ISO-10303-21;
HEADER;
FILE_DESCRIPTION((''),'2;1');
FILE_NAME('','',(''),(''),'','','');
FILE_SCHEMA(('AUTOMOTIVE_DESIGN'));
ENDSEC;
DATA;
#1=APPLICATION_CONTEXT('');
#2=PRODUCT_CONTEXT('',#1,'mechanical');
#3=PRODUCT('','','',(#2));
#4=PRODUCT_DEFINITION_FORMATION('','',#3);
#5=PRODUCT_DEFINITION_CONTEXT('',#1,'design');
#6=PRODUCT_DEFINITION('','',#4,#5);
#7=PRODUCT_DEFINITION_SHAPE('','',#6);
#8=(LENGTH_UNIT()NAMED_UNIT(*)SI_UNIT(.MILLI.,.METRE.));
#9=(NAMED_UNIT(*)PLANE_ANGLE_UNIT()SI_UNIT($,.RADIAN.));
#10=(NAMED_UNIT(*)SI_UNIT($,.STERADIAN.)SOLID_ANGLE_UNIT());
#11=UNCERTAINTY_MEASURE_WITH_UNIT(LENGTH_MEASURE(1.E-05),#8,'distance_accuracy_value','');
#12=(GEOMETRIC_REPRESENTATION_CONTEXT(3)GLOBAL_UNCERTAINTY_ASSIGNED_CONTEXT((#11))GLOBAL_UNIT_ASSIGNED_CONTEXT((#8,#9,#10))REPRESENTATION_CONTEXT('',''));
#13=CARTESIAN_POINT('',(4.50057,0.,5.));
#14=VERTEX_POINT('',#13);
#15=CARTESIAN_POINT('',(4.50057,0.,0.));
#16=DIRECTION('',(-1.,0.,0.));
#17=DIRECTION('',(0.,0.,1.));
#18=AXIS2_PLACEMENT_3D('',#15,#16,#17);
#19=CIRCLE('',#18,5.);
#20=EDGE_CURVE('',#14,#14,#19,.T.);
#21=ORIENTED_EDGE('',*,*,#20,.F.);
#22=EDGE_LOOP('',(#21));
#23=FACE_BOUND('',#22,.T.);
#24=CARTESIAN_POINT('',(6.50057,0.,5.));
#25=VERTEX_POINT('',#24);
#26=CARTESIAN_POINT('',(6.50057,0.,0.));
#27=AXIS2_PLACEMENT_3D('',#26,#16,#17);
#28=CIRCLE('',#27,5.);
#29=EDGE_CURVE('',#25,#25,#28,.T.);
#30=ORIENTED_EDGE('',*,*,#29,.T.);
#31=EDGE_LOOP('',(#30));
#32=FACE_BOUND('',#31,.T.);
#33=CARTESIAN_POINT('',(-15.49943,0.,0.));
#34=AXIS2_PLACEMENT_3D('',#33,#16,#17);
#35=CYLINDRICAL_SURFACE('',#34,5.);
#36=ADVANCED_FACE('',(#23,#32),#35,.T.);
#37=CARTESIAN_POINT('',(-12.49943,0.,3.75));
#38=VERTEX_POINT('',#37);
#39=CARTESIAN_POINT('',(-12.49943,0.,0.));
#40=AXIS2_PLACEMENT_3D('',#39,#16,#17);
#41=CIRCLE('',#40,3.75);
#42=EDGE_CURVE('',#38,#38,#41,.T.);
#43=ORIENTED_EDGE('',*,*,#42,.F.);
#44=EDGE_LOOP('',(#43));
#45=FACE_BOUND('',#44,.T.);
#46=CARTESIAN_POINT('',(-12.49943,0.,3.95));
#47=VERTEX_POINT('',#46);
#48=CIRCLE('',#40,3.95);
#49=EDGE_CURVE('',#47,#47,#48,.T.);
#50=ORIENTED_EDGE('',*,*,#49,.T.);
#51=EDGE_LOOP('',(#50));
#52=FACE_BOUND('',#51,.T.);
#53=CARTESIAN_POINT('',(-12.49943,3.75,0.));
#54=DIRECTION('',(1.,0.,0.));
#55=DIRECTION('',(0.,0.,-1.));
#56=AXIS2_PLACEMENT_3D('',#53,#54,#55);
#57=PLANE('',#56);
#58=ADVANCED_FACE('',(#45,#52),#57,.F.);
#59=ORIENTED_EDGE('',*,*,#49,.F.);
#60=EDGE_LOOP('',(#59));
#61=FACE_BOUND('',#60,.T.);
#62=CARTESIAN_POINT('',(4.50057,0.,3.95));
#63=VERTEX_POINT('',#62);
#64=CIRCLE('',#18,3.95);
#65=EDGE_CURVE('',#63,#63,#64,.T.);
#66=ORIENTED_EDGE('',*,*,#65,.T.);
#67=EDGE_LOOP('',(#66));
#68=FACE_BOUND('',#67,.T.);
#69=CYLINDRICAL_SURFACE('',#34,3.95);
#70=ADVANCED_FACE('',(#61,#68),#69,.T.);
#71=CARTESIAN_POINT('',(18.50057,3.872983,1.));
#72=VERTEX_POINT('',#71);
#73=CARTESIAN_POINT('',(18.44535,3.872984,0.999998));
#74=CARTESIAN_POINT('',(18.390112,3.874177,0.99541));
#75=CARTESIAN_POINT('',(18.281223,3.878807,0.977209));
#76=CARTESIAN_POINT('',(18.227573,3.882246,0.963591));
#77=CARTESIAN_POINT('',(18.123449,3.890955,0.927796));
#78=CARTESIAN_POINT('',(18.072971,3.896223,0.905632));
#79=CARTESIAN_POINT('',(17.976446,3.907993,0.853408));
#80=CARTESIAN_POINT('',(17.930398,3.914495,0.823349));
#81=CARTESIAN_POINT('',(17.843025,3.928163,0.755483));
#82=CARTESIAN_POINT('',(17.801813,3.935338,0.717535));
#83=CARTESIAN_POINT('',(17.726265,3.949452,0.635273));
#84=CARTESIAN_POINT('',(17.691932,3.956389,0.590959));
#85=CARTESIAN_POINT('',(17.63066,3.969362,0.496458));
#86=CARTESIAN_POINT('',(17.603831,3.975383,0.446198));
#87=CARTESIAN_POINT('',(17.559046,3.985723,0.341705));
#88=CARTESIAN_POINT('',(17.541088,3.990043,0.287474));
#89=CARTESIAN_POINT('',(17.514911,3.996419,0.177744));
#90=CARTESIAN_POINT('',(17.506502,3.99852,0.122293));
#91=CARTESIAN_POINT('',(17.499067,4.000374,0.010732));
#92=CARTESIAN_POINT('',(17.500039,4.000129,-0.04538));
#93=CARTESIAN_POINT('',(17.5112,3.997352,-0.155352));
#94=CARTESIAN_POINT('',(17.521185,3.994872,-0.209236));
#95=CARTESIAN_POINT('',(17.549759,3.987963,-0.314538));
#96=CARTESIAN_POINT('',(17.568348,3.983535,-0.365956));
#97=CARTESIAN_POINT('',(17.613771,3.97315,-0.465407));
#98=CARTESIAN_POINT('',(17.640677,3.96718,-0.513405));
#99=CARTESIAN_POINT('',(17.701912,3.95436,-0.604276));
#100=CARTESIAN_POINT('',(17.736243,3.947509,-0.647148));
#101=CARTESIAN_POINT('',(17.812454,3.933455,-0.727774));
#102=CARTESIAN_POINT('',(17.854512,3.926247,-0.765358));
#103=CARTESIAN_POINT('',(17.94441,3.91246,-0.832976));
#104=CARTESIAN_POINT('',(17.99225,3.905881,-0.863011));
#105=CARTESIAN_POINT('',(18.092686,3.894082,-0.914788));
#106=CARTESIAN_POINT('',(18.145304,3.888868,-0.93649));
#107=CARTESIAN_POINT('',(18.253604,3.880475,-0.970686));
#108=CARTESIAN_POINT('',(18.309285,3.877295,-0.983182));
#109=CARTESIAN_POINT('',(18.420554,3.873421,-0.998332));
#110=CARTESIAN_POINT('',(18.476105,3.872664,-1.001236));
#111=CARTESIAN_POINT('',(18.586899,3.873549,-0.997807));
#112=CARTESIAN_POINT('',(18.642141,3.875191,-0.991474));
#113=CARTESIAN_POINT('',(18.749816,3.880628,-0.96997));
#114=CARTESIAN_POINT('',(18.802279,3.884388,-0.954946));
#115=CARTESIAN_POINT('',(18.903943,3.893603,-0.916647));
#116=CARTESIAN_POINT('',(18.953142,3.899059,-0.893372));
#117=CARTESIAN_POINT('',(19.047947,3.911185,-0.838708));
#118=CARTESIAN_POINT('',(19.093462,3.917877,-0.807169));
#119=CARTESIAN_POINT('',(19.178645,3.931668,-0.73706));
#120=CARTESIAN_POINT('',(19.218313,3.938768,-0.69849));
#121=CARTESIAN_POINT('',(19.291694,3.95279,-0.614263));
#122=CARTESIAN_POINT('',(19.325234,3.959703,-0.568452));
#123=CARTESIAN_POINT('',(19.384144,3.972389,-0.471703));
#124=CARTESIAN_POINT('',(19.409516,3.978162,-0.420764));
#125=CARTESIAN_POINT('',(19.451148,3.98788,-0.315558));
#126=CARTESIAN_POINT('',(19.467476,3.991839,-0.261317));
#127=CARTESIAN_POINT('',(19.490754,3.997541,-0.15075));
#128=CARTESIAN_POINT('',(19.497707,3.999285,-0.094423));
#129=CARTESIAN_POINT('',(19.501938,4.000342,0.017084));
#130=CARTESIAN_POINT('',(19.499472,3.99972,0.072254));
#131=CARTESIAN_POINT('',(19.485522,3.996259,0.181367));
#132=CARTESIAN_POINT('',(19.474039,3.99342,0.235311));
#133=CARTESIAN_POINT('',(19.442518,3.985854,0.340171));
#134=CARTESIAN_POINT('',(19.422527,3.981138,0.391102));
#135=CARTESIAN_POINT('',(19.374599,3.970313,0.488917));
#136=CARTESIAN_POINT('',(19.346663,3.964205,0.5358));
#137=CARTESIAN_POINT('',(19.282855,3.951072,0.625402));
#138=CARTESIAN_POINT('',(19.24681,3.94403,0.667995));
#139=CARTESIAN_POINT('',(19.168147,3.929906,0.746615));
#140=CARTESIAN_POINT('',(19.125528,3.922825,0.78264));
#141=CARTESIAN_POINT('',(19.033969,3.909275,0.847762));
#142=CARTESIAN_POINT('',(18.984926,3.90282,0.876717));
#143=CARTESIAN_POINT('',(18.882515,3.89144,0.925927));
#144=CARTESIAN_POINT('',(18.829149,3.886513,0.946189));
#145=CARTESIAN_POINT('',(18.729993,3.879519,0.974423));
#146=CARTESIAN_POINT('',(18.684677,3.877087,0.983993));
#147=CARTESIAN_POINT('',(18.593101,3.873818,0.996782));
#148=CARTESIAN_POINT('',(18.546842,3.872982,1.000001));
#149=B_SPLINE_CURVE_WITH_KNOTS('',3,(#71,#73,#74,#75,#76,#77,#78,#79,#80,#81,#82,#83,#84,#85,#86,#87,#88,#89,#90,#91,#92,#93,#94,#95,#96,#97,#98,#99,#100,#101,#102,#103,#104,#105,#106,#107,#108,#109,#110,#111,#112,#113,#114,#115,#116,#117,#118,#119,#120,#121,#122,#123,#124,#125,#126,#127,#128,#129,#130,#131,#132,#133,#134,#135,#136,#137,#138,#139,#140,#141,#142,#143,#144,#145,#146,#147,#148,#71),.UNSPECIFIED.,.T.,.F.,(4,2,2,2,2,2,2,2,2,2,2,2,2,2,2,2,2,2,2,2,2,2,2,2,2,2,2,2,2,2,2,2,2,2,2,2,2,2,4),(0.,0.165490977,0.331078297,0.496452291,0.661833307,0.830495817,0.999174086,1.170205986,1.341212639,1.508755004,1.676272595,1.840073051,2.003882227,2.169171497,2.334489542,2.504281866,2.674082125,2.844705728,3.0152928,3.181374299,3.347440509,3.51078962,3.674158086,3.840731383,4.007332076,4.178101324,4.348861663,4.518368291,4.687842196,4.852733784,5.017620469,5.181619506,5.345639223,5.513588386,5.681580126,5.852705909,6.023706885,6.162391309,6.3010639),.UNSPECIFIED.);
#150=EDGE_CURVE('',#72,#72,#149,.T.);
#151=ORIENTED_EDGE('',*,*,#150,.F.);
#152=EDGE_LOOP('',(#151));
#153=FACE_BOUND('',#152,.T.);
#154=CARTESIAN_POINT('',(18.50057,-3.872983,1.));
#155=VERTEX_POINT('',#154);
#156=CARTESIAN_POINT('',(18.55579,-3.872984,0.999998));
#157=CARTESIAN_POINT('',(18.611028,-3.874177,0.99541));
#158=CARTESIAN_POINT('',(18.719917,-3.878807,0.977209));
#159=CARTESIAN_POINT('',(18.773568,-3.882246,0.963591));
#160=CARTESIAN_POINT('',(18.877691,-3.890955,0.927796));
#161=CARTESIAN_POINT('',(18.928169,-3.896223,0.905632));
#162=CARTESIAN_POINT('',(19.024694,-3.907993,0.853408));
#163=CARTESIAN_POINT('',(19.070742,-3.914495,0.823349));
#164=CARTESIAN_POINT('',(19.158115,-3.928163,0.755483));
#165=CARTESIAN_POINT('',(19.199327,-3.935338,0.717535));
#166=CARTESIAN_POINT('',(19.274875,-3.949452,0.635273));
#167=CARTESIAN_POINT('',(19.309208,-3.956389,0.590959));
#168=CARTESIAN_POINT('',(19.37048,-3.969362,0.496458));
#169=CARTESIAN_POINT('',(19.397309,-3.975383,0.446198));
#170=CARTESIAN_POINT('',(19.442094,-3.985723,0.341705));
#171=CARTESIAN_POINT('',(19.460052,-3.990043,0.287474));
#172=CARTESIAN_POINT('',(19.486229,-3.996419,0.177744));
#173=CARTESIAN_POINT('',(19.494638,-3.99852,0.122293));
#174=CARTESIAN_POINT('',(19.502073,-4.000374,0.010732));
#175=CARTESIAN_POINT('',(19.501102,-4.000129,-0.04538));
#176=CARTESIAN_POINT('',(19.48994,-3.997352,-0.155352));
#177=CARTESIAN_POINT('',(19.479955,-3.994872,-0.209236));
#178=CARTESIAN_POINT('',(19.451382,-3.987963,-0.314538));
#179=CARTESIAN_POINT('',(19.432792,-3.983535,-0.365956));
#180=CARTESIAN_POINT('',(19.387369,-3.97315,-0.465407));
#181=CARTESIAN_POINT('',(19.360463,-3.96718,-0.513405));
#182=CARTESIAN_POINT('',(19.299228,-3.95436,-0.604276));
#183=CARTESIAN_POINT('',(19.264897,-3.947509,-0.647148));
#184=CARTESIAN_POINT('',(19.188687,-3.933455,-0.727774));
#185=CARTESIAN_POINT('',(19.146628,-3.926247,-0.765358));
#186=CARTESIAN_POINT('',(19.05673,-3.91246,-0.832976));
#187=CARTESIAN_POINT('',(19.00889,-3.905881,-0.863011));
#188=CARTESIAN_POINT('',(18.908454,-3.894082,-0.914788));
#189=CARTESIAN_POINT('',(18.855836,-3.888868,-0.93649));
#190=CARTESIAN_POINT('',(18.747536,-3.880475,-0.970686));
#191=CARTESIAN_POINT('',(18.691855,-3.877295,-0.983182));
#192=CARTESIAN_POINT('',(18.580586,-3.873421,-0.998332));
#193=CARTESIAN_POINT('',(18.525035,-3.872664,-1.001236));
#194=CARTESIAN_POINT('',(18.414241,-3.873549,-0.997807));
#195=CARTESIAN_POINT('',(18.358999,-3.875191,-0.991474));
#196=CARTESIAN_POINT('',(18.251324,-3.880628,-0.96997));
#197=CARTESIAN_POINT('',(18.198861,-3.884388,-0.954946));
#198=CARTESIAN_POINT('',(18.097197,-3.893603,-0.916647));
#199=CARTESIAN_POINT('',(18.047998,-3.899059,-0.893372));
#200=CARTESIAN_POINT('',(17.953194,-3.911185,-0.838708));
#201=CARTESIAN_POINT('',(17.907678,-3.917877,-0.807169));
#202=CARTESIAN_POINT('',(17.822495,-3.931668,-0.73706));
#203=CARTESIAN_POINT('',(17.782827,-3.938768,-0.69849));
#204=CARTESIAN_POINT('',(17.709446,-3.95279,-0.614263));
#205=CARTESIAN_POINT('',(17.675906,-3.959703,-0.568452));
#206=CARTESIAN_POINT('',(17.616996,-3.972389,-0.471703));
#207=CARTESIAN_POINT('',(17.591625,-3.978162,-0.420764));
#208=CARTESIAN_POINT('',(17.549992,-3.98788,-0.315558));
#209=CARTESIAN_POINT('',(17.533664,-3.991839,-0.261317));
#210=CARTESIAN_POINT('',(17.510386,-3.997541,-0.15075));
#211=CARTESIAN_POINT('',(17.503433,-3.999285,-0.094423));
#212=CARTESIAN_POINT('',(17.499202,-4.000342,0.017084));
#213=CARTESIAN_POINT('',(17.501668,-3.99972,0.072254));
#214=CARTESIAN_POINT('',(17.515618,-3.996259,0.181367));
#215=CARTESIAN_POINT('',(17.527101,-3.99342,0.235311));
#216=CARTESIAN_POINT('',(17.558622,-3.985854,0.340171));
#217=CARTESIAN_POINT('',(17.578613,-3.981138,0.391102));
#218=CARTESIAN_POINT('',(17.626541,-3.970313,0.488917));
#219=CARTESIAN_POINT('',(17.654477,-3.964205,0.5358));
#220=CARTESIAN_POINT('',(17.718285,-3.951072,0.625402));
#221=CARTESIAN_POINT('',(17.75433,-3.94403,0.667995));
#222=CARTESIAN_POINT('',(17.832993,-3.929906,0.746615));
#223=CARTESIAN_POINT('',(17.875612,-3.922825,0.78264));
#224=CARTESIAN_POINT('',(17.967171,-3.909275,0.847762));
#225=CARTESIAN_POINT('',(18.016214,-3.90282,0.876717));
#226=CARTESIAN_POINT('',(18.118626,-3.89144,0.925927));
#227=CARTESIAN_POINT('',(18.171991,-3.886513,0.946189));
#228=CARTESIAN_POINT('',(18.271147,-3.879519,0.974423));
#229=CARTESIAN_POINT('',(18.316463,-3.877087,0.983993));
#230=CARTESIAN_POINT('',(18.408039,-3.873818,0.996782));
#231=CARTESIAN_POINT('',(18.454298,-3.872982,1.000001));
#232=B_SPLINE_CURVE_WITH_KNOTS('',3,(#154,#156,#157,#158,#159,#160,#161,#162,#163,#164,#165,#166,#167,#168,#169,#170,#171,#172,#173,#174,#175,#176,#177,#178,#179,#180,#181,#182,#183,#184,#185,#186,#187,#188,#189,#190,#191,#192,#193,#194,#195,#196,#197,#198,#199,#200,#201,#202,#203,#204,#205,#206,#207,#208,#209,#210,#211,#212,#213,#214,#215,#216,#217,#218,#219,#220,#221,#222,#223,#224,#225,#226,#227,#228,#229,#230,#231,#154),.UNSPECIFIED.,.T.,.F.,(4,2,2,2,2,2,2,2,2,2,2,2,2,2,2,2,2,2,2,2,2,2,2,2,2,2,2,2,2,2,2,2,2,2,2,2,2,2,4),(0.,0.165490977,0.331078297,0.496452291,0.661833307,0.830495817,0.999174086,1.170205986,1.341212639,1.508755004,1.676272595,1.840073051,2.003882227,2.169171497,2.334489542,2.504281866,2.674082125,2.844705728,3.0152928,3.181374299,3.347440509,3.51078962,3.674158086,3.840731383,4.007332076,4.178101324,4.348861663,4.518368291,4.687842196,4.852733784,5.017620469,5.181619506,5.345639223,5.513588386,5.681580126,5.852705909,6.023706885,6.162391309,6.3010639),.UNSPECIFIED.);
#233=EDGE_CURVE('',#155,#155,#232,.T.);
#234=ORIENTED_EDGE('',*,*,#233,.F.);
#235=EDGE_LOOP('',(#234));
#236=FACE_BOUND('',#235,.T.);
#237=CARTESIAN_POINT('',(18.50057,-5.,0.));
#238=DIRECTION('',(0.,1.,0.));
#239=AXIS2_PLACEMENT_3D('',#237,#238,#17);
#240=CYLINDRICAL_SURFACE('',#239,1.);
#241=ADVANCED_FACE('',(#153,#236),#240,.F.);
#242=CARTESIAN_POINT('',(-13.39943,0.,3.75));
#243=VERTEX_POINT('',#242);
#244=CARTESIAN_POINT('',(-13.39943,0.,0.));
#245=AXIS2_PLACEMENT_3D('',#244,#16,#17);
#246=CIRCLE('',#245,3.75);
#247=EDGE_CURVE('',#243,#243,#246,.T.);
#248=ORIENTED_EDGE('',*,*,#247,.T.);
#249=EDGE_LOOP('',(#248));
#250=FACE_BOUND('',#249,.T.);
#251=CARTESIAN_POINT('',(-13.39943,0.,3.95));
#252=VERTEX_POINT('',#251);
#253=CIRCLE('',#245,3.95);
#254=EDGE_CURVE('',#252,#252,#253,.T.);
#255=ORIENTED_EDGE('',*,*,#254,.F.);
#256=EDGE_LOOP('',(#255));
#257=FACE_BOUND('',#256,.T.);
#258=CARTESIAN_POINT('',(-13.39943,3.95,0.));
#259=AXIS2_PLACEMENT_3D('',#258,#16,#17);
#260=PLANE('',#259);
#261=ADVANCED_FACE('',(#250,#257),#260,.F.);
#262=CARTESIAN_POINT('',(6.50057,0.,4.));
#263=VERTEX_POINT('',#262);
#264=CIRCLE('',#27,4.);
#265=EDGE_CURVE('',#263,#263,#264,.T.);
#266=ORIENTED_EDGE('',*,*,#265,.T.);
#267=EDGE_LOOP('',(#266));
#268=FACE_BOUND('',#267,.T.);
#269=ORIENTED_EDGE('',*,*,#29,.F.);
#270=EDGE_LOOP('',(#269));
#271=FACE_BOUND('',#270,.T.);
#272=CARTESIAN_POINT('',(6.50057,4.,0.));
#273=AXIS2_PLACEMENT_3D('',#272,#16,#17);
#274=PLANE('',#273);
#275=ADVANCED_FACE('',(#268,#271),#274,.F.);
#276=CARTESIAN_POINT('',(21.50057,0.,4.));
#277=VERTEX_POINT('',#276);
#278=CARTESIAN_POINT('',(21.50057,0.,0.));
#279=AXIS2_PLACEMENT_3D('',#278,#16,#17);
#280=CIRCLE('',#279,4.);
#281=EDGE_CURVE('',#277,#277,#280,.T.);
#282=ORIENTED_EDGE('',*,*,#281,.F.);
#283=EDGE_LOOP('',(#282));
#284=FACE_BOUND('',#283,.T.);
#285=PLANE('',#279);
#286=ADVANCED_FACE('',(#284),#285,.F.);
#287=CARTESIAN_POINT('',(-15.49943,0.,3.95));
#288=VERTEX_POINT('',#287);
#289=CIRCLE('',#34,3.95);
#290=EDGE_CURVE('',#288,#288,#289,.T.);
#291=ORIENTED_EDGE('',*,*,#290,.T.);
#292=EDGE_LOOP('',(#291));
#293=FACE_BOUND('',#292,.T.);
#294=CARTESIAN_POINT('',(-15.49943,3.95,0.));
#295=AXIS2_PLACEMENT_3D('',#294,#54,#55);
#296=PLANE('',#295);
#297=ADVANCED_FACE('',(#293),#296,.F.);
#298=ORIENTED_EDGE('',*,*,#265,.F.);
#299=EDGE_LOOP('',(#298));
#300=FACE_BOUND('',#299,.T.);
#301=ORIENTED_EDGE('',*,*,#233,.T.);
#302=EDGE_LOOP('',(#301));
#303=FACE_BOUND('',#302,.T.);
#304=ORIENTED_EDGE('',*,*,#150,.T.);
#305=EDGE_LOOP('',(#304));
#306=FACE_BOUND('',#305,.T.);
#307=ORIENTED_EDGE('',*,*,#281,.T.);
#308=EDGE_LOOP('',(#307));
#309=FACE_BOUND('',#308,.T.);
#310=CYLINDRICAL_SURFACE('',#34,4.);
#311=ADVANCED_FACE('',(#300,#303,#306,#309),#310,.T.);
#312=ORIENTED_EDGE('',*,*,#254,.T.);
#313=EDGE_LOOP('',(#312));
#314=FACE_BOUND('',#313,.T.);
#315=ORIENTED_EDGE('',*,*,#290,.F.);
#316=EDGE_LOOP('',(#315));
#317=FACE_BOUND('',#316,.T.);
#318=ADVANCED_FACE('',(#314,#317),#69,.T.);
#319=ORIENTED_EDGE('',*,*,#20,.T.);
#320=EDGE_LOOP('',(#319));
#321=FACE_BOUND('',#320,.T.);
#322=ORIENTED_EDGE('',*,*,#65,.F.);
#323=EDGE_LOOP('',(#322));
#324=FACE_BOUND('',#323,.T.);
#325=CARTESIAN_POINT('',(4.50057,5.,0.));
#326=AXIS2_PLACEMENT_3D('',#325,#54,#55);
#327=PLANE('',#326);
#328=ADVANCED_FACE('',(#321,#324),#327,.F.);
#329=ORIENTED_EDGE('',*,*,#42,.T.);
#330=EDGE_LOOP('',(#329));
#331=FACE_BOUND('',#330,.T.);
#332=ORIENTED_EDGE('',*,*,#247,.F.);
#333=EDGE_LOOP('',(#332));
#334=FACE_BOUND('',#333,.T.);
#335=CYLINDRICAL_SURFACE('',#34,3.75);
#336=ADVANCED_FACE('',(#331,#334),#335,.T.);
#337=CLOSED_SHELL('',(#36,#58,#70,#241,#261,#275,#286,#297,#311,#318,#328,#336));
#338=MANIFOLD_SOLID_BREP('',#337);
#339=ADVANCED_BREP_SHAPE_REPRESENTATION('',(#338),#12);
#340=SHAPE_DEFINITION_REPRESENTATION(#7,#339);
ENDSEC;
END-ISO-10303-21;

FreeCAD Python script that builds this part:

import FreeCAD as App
import Part
import Sketcher
from FreeCAD import Vector

doc = App.newDocument("Part")
params = doc.addObject("Spreadsheet::Sheet", "Params")
for row, (alias, value) in enumerate([
    ("sketch1_width", "37 mm"),
    ("sketch1_width2", "15 mm"),
    ("sketch1_width3", "2 mm"),
    ("sketch1_width4", "17 mm"),
    ("sketch1_height", "4 mm"),
    ("revolution_angle", "360 deg"),
    ("sketch2_diameter", "2 mm"),
    ("pocket1_length", "10 mm"),
], start=1):
    params.set(f"A{row}", alias)
    params.set(f"B{row}", "=" + value)
    params.setAlias(f"B{row}", alias)

body = doc.addObject("PartDesign::Body", "Body")

# Sketch on XY plane
sketch1 = body.newObject("Sketcher::SketchObject", "Sketch")
sketch1.AttachmentSupport = (doc.getObject("XY_Plane"), [""])
sketch1.MapMode = "FlatFace"
sketch1.addGeometry([
    Part.LineSegment(Vector(-15.5, 0, 0), Vector(21.5, 0, 0)),  # 0
    Part.LineSegment(Vector(21.5, 0, 0), Vector(21.5, 4, 0)),  # 1
    Part.LineSegment(Vector(21.5, 4, 0), Vector(6.5, 4, 0)),  # 2
    Part.LineSegment(Vector(6.5, 4, 0), Vector(6.5, 5, 0)),  # 3
    Part.LineSegment(Vector(6.5, 5, 0), Vector(4.5, 5, 0)),  # 4
    Part.LineSegment(Vector(4.5, 5, 0), Vector(4.5, 3.95, 0)),  # 5
    Part.LineSegment(Vector(4.5, 3.95, 0), Vector(-12.5, 3.95, 0)),  # 6
    Part.LineSegment(Vector(-12.5, 3.95, 0), Vector(-12.5, 3.75, 0)),  # 7
    Part.LineSegment(Vector(-12.5, 3.75, 0), Vector(-13.4, 3.75, 0)),  # 8
    Part.LineSegment(Vector(-13.4, 3.75, 0), Vector(-13.4, 3.95, 0)),  # 9
    Part.LineSegment(Vector(-13.4, 3.95, 0), Vector(-15.5, 3.95, 0)),  # 10
    Part.LineSegment(Vector(-15.5, 3.95, 0), Vector(-15.5, 0, 0)),  # 11
], False)
sketch1.addConstraint([
    Sketcher.Constraint("Coincident", 0, 2, 1, 1),
    Sketcher.Constraint("Coincident", 1, 2, 2, 1),
    Sketcher.Constraint("Coincident", 2, 2, 3, 1),
    Sketcher.Constraint("Coincident", 3, 2, 4, 1),
    Sketcher.Constraint("Coincident", 4, 2, 5, 1),
    Sketcher.Constraint("Coincident", 5, 2, 6, 1),
    Sketcher.Constraint("Coincident", 6, 2, 7, 1),
    Sketcher.Constraint("Coincident", 7, 2, 8, 1),
    Sketcher.Constraint("Coincident", 8, 2, 9, 1),
    Sketcher.Constraint("Coincident", 9, 2, 10, 1),
    Sketcher.Constraint("Coincident", 10, 2, 11, 1),
    Sketcher.Constraint("Coincident", 11, 2, 0, 1),
    Sketcher.Constraint("Horizontal", 0),
    Sketcher.Constraint("Vertical", 1),
    Sketcher.Constraint("Horizontal", 2),
    Sketcher.Constraint("Vertical", 3),
    Sketcher.Constraint("Horizontal", 4),
    Sketcher.Constraint("Vertical", 5),
    Sketcher.Constraint("Horizontal", 6),
    Sketcher.Constraint("Vertical", 7),
    Sketcher.Constraint("Horizontal", 8),
    Sketcher.Constraint("Vertical", 9),
    Sketcher.Constraint("Horizontal", 10),
    Sketcher.Constraint("Vertical", 11),
    Sketcher.Constraint("PointOnObject", 0, 2, -1),
    Sketcher.Constraint("Horizontal", 6, 2, 9, 2),
    Sketcher.Constraint("DistanceX", 0, 1, 0, 2, 37.0),
    Sketcher.Constraint("DistanceX", 2, 2, 2, 1, 15.0),
    Sketcher.Constraint("DistanceX", 4, 2, 4, 1, 2.0),
    Sketcher.Constraint("DistanceX", 6, 2, 6, 1, 17.0),
    Sketcher.Constraint("DistanceY", 1, 1, 1, 2, 4.0),
    Sketcher.Constraint("DistanceY", 3, 1, 3, 2, 1.0),
    Sketcher.Constraint("DistanceX", 8, 2, 8, 1, 0.9),
    Sketcher.Constraint("DistanceY", 7, 2, 7, 1, 0.2),
    Sketcher.Constraint("DistanceY", 5, 2, 5, 1, 1.05),
    Sketcher.Constraint("DistanceX", -1, 1, 0, 2, 21.50057),
])
sketch1.setExpression("Constraints[26]", "Params.sketch1_width")
sketch1.setExpression("Constraints[27]", "Params.sketch1_width2")
sketch1.setExpression("Constraints[28]", "Params.sketch1_width3")
sketch1.setExpression("Constraints[29]", "Params.sketch1_width4")
sketch1.setExpression("Constraints[30]", "Params.sketch1_height")
revolution = body.newObject("PartDesign::Revolution", "Revolution")
revolution.Profile = sketch1
revolution.ReferenceAxis = (sketch1, ["H_Axis"])
revolution.setExpression("Angle", "Params.revolution_angle")

# Sketch on XZ plane
sketch2 = body.newObject("Sketcher::SketchObject", "Sketch001")
sketch2.AttachmentSupport = (doc.getObject("XZ_Plane"), [""])
sketch2.MapMode = "FlatFace"
sketch2.addGeometry(Part.Circle(Vector(18.5, 0, 0), Vector(0, 0, 1), 1), False)
sketch2.addConstraint([
    Sketcher.Constraint("PointOnObject", 0, 3, -1),
    Sketcher.Constraint("Diameter", 0, 2.0),
    Sketcher.Constraint("DistanceX", -1, 1, 0, 3, 18.50057),
])
sketch2.setExpression("Constraints[1]", "Params.sketch2_diameter")
pocket1 = body.newObject("PartDesign::Pocket", "Pocket")
pocket1.Profile = sketch2
pocket1.setExpression("Length", "Params.pocket1_length")
pocket1.Midplane = True

doc.recompute()
